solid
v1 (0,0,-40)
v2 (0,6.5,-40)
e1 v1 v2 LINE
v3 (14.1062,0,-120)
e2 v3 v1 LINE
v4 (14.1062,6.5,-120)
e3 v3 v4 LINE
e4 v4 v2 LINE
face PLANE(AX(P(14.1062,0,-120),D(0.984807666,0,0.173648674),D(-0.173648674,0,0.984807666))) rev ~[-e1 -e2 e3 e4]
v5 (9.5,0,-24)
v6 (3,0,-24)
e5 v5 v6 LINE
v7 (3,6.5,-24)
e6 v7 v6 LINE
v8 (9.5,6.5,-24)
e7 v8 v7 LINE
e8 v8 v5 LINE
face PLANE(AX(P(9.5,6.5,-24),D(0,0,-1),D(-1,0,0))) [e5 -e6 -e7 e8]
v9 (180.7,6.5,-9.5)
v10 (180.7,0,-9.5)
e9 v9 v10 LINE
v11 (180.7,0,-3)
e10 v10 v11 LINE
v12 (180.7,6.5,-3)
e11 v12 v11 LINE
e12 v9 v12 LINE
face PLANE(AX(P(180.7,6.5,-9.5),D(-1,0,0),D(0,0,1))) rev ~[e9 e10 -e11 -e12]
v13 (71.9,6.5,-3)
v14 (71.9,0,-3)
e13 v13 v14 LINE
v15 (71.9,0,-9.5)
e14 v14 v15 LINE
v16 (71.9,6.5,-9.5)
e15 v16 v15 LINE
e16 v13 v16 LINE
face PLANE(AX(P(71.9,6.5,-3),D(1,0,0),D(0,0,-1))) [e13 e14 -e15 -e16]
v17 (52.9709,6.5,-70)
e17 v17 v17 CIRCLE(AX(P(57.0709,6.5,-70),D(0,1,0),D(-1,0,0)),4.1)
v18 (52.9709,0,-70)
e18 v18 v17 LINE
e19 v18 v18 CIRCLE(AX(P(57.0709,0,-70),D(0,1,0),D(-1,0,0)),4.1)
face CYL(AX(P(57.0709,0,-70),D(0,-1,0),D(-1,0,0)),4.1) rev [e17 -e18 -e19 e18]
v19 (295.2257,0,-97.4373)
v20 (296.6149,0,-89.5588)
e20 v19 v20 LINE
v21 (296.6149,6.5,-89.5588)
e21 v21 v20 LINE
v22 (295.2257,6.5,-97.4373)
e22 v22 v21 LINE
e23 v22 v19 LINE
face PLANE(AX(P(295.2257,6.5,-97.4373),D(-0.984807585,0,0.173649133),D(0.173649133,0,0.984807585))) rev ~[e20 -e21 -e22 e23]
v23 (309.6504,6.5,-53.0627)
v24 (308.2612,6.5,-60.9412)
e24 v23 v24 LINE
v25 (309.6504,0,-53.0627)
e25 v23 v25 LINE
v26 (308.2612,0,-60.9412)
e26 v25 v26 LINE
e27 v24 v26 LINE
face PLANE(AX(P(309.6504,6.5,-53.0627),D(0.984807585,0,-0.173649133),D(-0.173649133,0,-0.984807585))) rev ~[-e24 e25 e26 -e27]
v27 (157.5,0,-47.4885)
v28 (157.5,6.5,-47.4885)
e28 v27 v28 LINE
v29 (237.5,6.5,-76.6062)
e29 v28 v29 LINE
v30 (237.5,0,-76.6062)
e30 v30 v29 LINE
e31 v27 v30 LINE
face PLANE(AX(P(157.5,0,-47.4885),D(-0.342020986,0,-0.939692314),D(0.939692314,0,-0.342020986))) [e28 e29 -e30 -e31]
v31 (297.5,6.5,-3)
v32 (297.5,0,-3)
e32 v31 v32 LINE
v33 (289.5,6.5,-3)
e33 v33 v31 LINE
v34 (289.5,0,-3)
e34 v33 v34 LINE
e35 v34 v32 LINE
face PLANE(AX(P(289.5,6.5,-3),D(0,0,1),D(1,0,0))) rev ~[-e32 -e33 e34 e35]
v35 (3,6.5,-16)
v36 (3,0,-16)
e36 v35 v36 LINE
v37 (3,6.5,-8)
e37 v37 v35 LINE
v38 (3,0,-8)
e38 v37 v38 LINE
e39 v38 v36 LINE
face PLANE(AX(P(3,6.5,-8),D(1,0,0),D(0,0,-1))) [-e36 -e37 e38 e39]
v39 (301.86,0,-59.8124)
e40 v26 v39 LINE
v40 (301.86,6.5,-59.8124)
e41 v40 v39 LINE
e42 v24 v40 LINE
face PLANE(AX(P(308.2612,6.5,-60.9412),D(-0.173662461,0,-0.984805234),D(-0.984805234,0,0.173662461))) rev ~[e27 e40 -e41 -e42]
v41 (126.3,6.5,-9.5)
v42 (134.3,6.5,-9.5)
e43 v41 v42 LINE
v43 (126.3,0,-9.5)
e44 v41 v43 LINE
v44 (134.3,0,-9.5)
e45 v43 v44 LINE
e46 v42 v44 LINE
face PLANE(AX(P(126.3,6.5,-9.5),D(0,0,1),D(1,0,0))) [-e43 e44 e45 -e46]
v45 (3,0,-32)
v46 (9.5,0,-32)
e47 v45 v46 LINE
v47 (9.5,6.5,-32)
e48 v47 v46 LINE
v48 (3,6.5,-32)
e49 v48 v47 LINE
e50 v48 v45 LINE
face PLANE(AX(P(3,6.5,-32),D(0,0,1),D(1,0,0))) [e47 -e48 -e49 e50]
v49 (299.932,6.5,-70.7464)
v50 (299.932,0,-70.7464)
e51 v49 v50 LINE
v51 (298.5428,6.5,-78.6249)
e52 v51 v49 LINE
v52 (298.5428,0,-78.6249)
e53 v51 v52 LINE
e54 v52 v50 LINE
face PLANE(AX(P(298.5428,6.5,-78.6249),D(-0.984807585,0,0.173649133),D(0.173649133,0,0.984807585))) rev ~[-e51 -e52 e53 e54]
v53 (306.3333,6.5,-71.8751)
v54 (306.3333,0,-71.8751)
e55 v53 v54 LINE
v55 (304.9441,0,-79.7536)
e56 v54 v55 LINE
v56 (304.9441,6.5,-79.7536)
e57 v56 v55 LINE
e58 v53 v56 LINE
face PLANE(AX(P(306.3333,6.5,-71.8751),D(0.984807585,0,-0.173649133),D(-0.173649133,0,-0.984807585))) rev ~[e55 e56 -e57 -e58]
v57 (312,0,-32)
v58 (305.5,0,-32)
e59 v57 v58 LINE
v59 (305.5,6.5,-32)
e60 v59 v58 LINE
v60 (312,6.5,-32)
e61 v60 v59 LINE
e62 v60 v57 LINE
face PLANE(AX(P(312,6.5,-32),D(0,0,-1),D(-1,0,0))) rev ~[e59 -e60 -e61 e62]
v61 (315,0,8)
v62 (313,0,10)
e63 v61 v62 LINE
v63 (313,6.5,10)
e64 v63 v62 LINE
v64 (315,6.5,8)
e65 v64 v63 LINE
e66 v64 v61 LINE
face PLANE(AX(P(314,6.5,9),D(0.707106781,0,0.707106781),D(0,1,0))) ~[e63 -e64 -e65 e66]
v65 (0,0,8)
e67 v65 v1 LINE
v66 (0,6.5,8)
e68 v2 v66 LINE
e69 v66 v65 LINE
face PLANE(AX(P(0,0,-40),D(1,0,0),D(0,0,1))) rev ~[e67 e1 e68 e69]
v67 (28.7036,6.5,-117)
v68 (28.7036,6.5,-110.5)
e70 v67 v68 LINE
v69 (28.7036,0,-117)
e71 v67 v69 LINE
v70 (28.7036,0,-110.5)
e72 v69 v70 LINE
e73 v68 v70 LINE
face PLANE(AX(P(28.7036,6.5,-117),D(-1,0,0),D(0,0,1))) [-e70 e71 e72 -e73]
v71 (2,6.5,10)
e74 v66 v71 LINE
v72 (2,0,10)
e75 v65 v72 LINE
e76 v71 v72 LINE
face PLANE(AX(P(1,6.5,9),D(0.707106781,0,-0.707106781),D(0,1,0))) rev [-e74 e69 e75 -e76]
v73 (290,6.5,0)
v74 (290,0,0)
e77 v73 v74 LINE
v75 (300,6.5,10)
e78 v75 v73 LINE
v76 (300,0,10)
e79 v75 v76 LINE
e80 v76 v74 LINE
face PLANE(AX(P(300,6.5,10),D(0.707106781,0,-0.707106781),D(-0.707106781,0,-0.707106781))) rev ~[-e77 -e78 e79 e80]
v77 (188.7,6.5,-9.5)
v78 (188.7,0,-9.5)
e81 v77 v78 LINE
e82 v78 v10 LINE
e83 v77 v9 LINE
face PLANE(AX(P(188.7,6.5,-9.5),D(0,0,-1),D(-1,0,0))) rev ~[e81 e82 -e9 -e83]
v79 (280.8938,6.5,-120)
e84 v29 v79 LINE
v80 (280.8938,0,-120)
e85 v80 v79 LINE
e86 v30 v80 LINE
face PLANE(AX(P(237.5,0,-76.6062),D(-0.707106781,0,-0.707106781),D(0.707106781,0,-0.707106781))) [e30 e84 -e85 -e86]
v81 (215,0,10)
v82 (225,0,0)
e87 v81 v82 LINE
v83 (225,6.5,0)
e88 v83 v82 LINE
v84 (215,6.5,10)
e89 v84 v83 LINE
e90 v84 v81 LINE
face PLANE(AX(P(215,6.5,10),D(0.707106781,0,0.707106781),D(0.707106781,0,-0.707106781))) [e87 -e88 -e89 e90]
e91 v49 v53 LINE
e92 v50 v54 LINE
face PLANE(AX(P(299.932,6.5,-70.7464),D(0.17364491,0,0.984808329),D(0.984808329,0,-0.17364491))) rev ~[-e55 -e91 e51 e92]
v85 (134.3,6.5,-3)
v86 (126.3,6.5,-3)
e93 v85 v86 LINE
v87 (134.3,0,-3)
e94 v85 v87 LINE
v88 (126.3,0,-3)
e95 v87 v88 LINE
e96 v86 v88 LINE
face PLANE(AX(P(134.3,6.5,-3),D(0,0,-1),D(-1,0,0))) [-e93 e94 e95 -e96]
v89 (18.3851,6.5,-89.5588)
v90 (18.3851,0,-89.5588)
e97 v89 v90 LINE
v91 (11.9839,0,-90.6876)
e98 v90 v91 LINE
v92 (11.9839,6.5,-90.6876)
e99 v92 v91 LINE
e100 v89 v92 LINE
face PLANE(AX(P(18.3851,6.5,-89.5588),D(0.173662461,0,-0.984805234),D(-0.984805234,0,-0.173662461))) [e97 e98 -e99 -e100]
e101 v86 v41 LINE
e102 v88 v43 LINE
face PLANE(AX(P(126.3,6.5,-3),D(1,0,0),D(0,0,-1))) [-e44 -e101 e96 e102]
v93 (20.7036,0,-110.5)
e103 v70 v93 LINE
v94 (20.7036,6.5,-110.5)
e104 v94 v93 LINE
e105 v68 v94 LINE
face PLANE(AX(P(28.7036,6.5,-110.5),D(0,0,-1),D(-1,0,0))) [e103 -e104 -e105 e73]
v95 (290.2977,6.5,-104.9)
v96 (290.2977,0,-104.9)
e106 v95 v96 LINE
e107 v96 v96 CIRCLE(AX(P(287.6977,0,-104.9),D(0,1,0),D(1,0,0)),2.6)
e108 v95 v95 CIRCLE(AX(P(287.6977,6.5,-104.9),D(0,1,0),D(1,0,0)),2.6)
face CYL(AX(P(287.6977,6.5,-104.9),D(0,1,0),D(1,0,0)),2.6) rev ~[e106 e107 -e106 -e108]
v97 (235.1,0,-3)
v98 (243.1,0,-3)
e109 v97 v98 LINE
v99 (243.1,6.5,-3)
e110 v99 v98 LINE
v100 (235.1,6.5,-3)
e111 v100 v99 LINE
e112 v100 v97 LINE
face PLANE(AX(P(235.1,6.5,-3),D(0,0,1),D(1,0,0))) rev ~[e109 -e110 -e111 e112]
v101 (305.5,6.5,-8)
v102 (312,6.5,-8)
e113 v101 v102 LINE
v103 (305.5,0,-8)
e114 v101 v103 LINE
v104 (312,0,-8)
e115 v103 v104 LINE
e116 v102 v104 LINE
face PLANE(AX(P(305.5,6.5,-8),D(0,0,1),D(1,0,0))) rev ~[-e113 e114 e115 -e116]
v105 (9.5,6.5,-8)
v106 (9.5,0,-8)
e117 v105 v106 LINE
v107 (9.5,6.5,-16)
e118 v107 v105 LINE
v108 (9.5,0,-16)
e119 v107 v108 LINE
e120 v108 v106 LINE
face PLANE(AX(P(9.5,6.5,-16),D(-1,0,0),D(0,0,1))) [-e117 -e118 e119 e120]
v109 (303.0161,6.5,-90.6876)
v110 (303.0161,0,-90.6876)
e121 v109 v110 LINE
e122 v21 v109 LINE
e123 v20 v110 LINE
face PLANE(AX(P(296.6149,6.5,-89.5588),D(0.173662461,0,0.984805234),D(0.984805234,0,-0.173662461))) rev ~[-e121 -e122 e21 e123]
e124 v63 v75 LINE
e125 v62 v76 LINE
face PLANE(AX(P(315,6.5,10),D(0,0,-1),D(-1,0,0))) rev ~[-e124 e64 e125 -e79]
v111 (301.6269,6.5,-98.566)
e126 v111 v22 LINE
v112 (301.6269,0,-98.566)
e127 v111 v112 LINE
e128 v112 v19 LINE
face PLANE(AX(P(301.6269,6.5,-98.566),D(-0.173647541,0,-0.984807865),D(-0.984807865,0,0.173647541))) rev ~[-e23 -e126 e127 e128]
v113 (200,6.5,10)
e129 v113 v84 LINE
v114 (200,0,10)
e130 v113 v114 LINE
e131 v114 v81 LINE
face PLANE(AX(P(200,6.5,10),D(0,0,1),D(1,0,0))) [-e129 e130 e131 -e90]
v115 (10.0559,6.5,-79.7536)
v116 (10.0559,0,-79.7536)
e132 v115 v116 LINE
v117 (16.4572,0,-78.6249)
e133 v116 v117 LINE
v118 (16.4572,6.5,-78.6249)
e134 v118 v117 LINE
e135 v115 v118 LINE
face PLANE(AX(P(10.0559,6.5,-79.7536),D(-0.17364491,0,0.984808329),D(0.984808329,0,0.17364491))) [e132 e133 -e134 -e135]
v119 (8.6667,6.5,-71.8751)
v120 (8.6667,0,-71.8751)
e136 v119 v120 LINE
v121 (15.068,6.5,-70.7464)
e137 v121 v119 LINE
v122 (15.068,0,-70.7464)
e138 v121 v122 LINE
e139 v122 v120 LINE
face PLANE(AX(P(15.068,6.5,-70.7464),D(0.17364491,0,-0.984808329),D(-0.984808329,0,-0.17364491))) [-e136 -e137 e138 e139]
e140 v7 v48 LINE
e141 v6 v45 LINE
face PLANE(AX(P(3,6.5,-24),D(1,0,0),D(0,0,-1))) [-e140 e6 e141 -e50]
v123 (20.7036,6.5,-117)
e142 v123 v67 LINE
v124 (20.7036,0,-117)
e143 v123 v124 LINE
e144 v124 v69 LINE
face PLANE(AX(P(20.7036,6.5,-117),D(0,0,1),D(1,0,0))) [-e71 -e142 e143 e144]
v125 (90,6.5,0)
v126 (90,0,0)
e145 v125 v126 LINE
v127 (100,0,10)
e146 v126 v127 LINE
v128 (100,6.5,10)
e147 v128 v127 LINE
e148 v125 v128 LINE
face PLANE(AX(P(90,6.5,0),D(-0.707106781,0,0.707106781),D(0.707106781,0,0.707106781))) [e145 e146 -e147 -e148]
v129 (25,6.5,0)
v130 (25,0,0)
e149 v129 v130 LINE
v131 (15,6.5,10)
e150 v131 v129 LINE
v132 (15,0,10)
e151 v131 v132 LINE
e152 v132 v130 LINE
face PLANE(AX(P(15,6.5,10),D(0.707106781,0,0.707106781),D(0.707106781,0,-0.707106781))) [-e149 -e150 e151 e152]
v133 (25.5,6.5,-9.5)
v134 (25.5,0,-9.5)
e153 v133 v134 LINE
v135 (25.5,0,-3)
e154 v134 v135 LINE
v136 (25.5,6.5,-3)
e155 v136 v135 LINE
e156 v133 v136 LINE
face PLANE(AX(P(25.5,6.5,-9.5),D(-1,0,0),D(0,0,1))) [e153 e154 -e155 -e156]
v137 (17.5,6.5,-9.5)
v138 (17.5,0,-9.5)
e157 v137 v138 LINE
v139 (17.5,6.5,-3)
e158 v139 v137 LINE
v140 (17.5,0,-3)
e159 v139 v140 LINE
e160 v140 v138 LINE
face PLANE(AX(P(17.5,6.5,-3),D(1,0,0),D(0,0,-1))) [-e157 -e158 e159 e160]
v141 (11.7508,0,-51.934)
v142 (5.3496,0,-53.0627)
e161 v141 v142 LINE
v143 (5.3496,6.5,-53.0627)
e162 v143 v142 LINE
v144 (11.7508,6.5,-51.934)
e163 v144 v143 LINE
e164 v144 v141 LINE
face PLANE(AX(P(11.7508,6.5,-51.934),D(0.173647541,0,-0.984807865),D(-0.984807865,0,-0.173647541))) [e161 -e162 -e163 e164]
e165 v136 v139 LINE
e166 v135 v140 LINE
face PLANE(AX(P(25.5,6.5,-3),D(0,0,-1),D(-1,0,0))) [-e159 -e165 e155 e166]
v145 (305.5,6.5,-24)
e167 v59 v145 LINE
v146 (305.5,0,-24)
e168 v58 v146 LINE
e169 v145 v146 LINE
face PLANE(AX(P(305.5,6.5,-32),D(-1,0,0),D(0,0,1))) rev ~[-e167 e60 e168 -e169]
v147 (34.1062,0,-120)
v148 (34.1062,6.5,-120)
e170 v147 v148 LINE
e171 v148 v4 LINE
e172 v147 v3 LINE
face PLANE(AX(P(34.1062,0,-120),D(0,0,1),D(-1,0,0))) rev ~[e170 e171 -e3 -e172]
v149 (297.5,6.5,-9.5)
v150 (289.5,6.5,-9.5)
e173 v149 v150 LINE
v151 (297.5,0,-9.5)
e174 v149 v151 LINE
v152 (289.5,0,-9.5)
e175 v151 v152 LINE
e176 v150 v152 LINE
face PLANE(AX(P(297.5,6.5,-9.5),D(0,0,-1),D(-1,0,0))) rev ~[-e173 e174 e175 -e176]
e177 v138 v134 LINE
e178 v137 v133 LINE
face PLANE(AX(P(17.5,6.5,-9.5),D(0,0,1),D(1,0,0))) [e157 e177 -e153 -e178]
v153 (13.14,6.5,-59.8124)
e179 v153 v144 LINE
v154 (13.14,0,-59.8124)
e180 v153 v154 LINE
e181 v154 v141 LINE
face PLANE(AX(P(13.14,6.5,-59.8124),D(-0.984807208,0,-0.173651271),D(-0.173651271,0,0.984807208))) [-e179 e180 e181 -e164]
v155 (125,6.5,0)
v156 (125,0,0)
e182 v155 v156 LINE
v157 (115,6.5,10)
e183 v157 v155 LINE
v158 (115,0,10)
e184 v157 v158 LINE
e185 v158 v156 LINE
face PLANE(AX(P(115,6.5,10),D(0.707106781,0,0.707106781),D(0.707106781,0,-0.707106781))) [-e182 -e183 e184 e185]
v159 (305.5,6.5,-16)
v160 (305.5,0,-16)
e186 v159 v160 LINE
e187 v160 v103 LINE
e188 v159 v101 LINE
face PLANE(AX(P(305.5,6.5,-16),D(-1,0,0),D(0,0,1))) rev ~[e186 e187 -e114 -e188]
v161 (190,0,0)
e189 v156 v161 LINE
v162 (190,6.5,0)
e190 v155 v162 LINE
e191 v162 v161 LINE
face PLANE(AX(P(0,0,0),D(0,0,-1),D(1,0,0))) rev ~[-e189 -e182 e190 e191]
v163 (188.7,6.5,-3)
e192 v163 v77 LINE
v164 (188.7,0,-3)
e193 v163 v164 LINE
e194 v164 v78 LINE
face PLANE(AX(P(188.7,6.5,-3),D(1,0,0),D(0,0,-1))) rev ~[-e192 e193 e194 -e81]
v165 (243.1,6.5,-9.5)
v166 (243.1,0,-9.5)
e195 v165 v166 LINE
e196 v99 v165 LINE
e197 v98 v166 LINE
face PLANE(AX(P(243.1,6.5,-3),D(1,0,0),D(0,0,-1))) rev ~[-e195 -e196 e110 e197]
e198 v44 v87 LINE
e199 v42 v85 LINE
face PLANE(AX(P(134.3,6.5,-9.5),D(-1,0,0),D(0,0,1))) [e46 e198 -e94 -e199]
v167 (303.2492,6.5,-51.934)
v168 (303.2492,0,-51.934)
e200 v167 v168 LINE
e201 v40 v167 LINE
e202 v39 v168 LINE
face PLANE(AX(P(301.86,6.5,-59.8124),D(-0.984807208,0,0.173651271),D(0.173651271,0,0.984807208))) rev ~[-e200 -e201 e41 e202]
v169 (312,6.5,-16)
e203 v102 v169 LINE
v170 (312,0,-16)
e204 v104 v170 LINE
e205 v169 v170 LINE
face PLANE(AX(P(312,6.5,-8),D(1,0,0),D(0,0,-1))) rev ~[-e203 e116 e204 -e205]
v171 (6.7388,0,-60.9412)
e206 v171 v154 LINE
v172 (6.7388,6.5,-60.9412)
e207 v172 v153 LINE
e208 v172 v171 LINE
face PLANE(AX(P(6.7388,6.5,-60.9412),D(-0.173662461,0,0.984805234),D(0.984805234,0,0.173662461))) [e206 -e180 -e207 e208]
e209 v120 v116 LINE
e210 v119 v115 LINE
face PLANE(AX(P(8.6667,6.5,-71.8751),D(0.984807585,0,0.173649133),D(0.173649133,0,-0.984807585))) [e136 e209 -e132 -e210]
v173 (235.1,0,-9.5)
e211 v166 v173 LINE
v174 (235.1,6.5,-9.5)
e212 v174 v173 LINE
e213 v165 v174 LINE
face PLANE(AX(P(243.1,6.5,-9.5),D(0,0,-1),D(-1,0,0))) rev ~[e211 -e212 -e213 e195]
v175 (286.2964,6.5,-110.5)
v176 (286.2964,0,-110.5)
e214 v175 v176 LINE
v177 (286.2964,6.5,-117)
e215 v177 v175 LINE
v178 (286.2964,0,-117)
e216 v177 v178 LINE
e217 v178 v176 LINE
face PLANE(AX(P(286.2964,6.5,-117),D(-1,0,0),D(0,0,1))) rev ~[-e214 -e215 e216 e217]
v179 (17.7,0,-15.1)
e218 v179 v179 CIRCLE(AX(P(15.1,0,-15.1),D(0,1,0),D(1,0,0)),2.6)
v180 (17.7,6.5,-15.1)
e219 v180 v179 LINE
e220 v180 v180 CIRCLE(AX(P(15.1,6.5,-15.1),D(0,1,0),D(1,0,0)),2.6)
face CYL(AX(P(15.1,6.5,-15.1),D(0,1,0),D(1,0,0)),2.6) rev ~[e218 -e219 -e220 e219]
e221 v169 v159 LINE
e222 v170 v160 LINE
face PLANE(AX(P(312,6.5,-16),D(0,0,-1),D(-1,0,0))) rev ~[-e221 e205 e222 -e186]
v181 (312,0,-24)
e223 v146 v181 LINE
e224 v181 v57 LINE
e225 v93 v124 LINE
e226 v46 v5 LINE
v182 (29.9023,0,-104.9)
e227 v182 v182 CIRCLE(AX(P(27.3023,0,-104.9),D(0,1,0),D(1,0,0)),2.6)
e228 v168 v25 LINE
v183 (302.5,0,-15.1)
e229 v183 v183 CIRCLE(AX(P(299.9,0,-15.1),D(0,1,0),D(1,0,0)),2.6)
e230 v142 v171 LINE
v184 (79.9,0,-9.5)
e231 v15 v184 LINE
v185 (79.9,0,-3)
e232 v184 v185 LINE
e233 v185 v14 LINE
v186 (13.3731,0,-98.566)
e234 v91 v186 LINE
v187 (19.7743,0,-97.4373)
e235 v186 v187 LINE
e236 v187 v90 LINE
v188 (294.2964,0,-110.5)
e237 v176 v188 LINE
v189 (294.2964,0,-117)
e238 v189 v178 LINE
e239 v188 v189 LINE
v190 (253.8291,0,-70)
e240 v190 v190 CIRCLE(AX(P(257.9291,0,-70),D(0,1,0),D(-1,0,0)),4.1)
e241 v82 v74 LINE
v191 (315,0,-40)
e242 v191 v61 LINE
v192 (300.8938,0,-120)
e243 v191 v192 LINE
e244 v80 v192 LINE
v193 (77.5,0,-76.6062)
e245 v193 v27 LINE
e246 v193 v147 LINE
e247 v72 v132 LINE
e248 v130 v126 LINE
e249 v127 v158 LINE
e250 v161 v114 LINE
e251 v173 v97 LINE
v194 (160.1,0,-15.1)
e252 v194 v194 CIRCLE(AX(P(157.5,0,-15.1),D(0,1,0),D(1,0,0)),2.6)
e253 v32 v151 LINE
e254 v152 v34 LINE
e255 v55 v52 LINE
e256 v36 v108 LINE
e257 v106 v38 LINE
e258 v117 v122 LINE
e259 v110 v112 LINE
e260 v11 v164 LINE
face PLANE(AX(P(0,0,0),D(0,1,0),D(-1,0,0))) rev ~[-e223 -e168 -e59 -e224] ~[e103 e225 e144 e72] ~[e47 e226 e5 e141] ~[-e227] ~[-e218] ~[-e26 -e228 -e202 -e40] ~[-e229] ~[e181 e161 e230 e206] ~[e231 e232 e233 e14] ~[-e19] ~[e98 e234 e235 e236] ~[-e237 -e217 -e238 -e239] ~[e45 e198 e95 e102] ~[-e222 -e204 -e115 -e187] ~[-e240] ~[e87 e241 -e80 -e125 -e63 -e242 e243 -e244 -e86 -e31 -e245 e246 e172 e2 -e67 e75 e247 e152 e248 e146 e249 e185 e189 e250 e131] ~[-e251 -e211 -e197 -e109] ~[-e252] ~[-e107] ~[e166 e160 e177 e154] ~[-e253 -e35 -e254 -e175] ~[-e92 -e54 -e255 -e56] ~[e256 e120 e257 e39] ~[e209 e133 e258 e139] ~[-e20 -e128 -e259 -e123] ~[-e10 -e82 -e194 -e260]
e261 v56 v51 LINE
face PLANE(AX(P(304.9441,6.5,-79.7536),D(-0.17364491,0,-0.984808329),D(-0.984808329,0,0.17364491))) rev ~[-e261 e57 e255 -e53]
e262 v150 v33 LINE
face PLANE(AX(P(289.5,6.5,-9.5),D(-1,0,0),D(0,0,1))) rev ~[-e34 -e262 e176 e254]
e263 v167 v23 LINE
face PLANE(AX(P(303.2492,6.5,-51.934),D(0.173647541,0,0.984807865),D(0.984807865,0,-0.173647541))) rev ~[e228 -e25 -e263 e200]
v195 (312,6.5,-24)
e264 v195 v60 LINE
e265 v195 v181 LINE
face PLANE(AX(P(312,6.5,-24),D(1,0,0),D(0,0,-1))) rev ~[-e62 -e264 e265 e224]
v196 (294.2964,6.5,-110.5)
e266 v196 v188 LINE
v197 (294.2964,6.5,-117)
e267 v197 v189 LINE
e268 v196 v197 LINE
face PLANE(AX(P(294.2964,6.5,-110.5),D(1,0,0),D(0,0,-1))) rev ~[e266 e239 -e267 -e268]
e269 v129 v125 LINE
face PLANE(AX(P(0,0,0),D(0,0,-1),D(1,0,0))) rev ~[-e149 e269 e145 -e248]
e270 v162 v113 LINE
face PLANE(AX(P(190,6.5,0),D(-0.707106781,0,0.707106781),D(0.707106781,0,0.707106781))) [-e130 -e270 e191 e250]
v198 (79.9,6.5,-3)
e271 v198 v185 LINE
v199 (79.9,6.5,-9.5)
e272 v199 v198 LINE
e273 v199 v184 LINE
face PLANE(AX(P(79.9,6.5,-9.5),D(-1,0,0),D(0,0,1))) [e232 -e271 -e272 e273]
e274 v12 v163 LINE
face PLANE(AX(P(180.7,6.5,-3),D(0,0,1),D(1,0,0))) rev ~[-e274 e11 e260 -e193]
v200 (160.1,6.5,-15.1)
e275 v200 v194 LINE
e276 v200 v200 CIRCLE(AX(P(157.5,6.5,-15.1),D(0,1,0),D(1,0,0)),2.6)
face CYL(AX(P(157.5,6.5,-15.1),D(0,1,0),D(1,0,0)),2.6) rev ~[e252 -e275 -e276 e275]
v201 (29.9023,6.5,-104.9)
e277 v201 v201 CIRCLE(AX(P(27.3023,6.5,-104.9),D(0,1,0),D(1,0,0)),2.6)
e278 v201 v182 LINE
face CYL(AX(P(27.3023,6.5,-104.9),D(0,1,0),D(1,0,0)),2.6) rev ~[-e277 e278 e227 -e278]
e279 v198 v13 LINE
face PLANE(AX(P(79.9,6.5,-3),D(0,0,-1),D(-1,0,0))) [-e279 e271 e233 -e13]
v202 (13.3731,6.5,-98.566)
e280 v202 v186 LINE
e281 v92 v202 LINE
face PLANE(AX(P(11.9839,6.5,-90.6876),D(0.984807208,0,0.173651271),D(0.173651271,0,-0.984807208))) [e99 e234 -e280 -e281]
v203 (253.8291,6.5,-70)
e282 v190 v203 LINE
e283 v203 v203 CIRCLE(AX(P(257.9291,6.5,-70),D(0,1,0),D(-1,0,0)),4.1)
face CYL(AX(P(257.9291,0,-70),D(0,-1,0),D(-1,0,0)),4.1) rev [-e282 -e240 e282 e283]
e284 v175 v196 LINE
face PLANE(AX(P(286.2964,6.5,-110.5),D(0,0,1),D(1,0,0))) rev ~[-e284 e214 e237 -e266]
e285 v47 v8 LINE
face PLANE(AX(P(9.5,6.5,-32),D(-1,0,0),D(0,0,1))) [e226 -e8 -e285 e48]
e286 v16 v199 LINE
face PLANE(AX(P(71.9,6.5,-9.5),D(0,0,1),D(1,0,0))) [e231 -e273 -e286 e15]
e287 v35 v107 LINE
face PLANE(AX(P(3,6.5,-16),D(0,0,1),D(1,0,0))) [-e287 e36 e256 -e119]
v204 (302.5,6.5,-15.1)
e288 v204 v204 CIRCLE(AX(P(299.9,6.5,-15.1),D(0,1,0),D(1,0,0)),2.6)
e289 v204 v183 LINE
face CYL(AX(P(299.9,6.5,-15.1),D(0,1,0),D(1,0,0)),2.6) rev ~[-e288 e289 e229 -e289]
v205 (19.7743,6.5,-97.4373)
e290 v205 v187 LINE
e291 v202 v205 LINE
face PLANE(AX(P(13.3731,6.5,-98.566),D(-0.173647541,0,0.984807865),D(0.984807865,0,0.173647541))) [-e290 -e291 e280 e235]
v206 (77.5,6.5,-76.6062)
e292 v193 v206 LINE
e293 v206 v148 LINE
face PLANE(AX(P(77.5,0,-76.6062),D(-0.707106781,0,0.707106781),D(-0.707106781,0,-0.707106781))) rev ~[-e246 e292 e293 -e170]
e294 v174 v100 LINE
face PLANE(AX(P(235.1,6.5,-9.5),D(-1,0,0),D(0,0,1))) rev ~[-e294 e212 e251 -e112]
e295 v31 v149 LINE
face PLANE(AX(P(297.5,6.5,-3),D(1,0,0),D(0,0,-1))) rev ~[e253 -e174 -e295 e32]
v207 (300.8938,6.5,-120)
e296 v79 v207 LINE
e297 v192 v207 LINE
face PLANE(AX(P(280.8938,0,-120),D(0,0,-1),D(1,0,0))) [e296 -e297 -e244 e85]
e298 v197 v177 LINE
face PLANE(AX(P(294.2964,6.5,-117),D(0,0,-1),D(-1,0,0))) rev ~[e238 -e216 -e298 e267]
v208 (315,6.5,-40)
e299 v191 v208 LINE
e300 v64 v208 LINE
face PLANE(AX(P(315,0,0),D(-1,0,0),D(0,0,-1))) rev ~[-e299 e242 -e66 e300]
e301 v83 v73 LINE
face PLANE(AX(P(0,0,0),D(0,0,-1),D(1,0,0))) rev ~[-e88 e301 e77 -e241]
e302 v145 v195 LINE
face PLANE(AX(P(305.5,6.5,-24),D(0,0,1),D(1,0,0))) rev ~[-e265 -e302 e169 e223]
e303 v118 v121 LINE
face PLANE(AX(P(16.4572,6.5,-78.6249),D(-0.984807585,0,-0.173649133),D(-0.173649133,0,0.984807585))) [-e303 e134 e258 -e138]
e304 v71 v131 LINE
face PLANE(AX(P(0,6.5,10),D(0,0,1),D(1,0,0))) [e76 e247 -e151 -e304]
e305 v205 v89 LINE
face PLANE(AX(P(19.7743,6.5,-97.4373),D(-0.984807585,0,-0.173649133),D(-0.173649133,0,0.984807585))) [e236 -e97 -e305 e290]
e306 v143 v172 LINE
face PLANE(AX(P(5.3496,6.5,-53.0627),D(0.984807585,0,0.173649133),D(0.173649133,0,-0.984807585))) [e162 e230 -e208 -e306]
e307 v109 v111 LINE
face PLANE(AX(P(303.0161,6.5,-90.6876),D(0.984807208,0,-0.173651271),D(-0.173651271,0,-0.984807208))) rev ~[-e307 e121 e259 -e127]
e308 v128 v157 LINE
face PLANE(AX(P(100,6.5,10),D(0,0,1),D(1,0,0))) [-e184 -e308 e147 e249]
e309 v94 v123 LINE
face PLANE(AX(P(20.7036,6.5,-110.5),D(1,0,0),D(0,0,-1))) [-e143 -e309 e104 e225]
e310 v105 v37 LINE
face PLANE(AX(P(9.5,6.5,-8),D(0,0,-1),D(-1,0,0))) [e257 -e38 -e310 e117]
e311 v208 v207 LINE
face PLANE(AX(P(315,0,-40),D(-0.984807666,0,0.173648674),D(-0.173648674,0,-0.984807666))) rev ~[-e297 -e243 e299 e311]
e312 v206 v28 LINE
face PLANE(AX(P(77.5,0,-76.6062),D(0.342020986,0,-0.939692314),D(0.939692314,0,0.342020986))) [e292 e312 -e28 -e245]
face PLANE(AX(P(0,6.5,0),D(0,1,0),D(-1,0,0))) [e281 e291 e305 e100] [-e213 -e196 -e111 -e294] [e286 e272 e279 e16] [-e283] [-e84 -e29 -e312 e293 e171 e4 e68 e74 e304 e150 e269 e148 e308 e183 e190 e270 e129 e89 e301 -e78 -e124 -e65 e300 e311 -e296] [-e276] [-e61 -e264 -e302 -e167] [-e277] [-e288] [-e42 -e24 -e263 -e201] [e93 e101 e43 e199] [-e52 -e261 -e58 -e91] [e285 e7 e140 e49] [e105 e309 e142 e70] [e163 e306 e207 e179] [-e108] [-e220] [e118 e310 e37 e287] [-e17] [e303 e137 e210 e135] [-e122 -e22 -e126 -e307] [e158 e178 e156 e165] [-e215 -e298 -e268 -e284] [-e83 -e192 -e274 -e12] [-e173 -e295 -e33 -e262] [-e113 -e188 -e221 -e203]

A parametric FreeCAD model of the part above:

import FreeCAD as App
import Part
import Sketcher
Q = App.Units.Quantity


def edges_at(feature, points):
    """Names of the edges that pass closest to the given points."""
    edges = feature.Shape.Edges
    near = lambda p: min(range(len(edges)), key=lambda i: edges[i].distToShape(Part.Vertex(*p))[0])
    return sorted({f"Edge{near(p) + 1}" for p in points})


def add_polygon(sketch, points):
    """Adds a closed chain of lines whose ends are joined by coincident constraints."""
    first, n = sketch.GeometryCount, len(points)
    for a, b in zip(points, points[1:] + points[:1]):
        sketch.addGeometry(Part.LineSegment(App.Vector(*a, 0), App.Vector(*b, 0)), False)
    for i in range(n):
        sketch.addConstraint(Sketcher.Constraint("Coincident", first + i, 2, first + (i + 1) % n, 1))

doc = App.newDocument("Part")
body = doc.addObject("PartDesign::Body", "Body")

sketch1 = body.newObject("Sketcher::SketchObject", "Sketch")
sketch1.AttachmentSupport = (doc.getObject("XZ_Plane"), [""])
sketch1.MapMode = "FlatFace"
add_polygon(sketch1, [(157.5, -47.5), (77.5, -76.6), (34.1, -120), (14.1, -120), (0, -40), (0, 0), (315, 0), (315, -40), (300.9, -120), (280.9, -120), (237.5, -76.6)])
sketch1.addGeometry(Part.Circle(App.Vector(257.9, -70, 0), App.Vector(0, 0, 1), 4.1), False)
sketch1.addGeometry(Part.Circle(App.Vector(57.1, -70, 0), App.Vector(0, 0, 1), 4.1), False)
sketch1.addConstraint(Sketcher.Constraint("Horizontal", 2))
sketch1.addConstraint(Sketcher.Constraint("Vertical", 4))
sketch1.addConstraint(Sketcher.Constraint("Horizontal", 5))
sketch1.addConstraint(Sketcher.Constraint("Vertical", 6))
sketch1.addConstraint(Sketcher.Constraint("Horizontal", 8))
sketch1.addConstraint(Sketcher.Constraint("Coincident", 4, 2, -1, 1))
sketch1.addConstraint(Sketcher.Constraint("Equal", 11, 12))
sketch1.addConstraint(Sketcher.Constraint("Perpendicular", 1, 9))
sketch1.addConstraint(Sketcher.Constraint("Horizontal", 11, 3, 12, 3))
sketch1.addConstraint(Sketcher.Constraint("Horizontal", 3, 2, 6, 2))
sketch1.addConstraint(Sketcher.Constraint("Horizontal", 2, 2, 7, 2))
sketch1.addConstraint(Sketcher.Constraint("Horizontal", 0, 2, 9, 2))
sketch1.addConstraint(Sketcher.Constraint("Equal", 2, 8))
sketch1.addConstraint(Sketcher.Constraint("Equal", 3, 7))
sketch1.addConstraint(Sketcher.Constraint("Equal", 1, 9))
sketch1.addConstraint(Sketcher.Constraint("Equal", 0, 10))
sketch1.addConstraint(Sketcher.Constraint("Diameter", 11, 8.2))
sketch1.addConstraint(Sketcher.Constraint("DistanceX", 2, 2, 2, 1, 20.0))
sketch1.addConstraint(Sketcher.Constraint("DistanceX", 5, 1, 5, 2, 315.0))
sketch1.addConstraint(Sketcher.Constraint("DistanceY", 4, 1, 4, 2, 40.0))
sketch1.addConstraint(Sketcher.Constraint("Angle", 0, Q("-160 deg")))
sketch1.addConstraint(Sketcher.Constraint("DistanceY", 11, 3, -1, 1, 70.0))
sketch1.addConstraint(Sketcher.Constraint("DistanceY", 2, 2, 3, 2, 80.0))
sketch1.addConstraint(Sketcher.Constraint("DistanceX", 0, 2, 10, 2, 80.0))
sketch1.addConstraint(Sketcher.Constraint("Angle", 3, Q("100 deg")))
sketch1.addConstraint(Sketcher.Constraint("DistanceX", -1, 1, 11, 3, 257.929))
sketch1.addConstraint(Sketcher.Constraint("DistanceX", -1, 1, 12, 3, 57.071))
pad1 = body.newObject("PartDesign::Pad", "Pad")
pad1.Profile = sketch1
pad1.Length = 6.5
pad1.Reversed = True

sketch2 = body.newObject("Sketcher::SketchObject", "Sketch001")
sketch2.AttachmentSupport = (doc.getObject("XZ_Plane"), [""])
sketch2.MapMode = "FlatFace"
sketch2.AttachmentOffset = App.Placement(App.Vector(0, 0, -6.5), App.Rotation())
add_polygon(sketch2, [(25.5, -9.5), (17.5, -9.5), (17.5, -3), (25.5, -3)])
add_polygon(sketch2, [(79.9, -9.5), (71.9, -9.5), (71.9, -3), (79.9, -3)])
add_polygon(sketch2, [(134.3, -9.5), (126.3, -9.5), (126.3, -3), (134.3, -3)])
add_polygon(sketch2, [(9.5, -32), (3, -32), (3, -24), (9.5, -24)])
add_polygon(sketch2, [(9.5, -16), (3, -16), (3, -8), (9.5, -8)])
add_polygon(sketch2, [(28.7, -117), (20.7, -117), (20.7, -110.5), (28.7, -110.5)])
add_polygon(sketch2, [(19.8, -97.4), (13.4, -98.6), (12, -90.7), (18.4, -89.6)])
add_polygon(sketch2, [(16.5, -78.6), (10.1, -79.8), (8.7, -71.9), (15.1, -70.7)])
add_polygon(sketch2, [(13.1, -59.8), (6.7, -60.9), (5.3, -53.1), (11.8, -51.9)])
add_polygon(sketch2, [(297.5, -3), (297.5, -9.5), (289.5, -9.5), (289.5, -3)])
add_polygon(sketch2, [(243.1, -3), (243.1, -9.5), (235.1, -9.5), (235.1, -3)])
add_polygon(sketch2, [(188.7, -3), (188.7, -9.5), (180.7, -9.5), (180.7, -3)])
add_polygon(sketch2, [(312, -24), (312, -32), (305.5, -32), (305.5, -24)])
add_polygon(sketch2, [(312, -8), (312, -16), (305.5, -16), (305.5, -8)])
add_polygon(sketch2, [(294.3, -110.5), (294.3, -117), (286.3, -117), (286.3, -110.5)])
add_polygon(sketch2, [(303, -90.7), (301.6, -98.6), (295.2, -97.4), (296.6, -89.6)])
add_polygon(sketch2, [(306.3, -71.9), (304.9, -79.8), (298.5, -78.6), (299.9, -70.7)])
add_polygon(sketch2, [(309.7, -53.1), (308.3, -60.9), (301.9, -59.8), (303.2, -51.9)])
sketch2.addGeometry(Part.Circle(App.Vector(27.3, -104.9, 0), App.Vector(0, 0, 1), 2.6), False)
sketch2.addGeometry(Part.Circle(App.Vector(15.1, -15.1, 0), App.Vector(0, 0, 1), 2.6), False)
sketch2.addGeometry(Part.Circle(App.Vector(157.5, -15.1, 0), App.Vector(0, 0, 1), 2.6), False)
sketch2.addGeometry(Part.Circle(App.Vector(287.7, -104.9, 0), App.Vector(0, 0, 1), 2.6), False)
sketch2.addGeometry(Part.Circle(App.Vector(299.9, -15.1, 0), App.Vector(0, 0, 1), 2.6), False)
sketch2.addConstraint(Sketcher.Constraint("Horizontal", 0))
sketch2.addConstraint(Sketcher.Constraint("Vertical", 1))
sketch2.addConstraint(Sketcher.Constraint("Horizontal", 2))
sketch2.addConstraint(Sketcher.Constraint("Vertical", 3))
sketch2.addConstraint(Sketcher.Constraint("Horizontal", 4))
sketch2.addConstraint(Sketcher.Constraint("Vertical", 5))
sketch2.addConstraint(Sketcher.Constraint("Horizontal", 6))
sketch2.addConstraint(Sketcher.Constraint("Vertical", 7))
sketch2.addConstraint(Sketcher.Constraint("Horizontal", 8))
sketch2.addConstraint(Sketcher.Constraint("Vertical", 9))
sketch2.addConstraint(Sketcher.Constraint("Horizontal", 10))
sketch2.addConstraint(Sketcher.Constraint("Vertical", 11))
sketch2.addConstraint(Sketcher.Constraint("Horizontal", 12))
sketch2.addConstraint(Sketcher.Constraint("Vertical", 13))
sketch2.addConstraint(Sketcher.Constraint("Horizontal", 14))
sketch2.addConstraint(Sketcher.Constraint("Vertical", 15))
sketch2.addConstraint(Sketcher.Constraint("Horizontal", 16))
sketch2.addConstraint(Sketcher.Constraint("Vertical", 17))
sketch2.addConstraint(Sketcher.Constraint("Horizontal", 18))
sketch2.addConstraint(Sketcher.Constraint("Vertical", 19))
sketch2.addConstraint(Sketcher.Constraint("Horizontal", 20))
sketch2.addConstraint(Sketcher.Constraint("Vertical", 21))
sketch2.addConstraint(Sketcher.Constraint("Horizontal", 22))
sketch2.addConstraint(Sketcher.Constraint("Vertical", 23))
sketch2.addConstraint(Sketcher.Constraint("Vertical", 36))
sketch2.addConstraint(Sketcher.Constraint("Horizontal", 37))
sketch2.addConstraint(Sketcher.Constraint("Vertical", 38))
sketch2.addConstraint(Sketcher.Constraint("Horizontal", 39))
sketch2.addConstraint(Sketcher.Constraint("Vertical", 40))
sketch2.addConstraint(Sketcher.Constraint("Horizontal", 41))
sketch2.addConstraint(Sketcher.Constraint("Vertical", 42))
sketch2.addConstraint(Sketcher.Constraint("Horizontal", 43))
sketch2.addConstraint(Sketcher.Constraint("Vertical", 44))
sketch2.addConstraint(Sketcher.Constraint("Horizontal", 45))
sketch2.addConstraint(Sketcher.Constraint("Vertical", 46))
sketch2.addConstraint(Sketcher.Constraint("Horizontal", 47))
sketch2.addConstraint(Sketcher.Constraint("Vertical", 48))
sketch2.addConstraint(Sketcher.Constraint("Horizontal", 49))
sketch2.addConstraint(Sketcher.Constraint("Vertical", 50))
sketch2.addConstraint(Sketcher.Constraint("Horizontal", 51))
sketch2.addConstraint(Sketcher.Constraint("Vertical", 52))
sketch2.addConstraint(Sketcher.Constraint("Horizontal", 53))
sketch2.addConstraint(Sketcher.Constraint("Vertical", 54))
sketch2.addConstraint(Sketcher.Constraint("Horizontal", 55))
sketch2.addConstraint(Sketcher.Constraint("Vertical", 56))
sketch2.addConstraint(Sketcher.Constraint("Horizontal", 57))
sketch2.addConstraint(Sketcher.Constraint("Vertical", 58))
sketch2.addConstraint(Sketcher.Constraint("Horizontal", 59))
sketch2.addConstraint(Sketcher.Constraint("Equal", 72, 73))
sketch2.addConstraint(Sketcher.Constraint("Equal", 73, 74))
sketch2.addConstraint(Sketcher.Constraint("Equal", 74, 75))
sketch2.addConstraint(Sketcher.Constraint("Equal", 75, 76))
sketch2.addConstraint(Sketcher.Constraint("Perpendicular", 24, 25))
sketch2.addConstraint(Sketcher.Constraint("Perpendicular", 25, 26))
sketch2.addConstraint(Sketcher.Constraint("Perpendicular", 26, 27))
sketch2.addConstraint(Sketcher.Constraint("Perpendicular", 27, 28))
sketch2.addConstraint(Sketcher.Constraint("Perpendicular", 28, 29))
sketch2.addConstraint(Sketcher.Constraint("Perpendicular", 29, 30))
sketch2.addConstraint(Sketcher.Constraint("Perpendicular", 30, 31))
sketch2.addConstraint(Sketcher.Constraint("Perpendicular", 31, 32))
sketch2.addConstraint(Sketcher.Constraint("Perpendicular", 32, 33))
sketch2.addConstraint(Sketcher.Constraint("Perpendicular", 33, 34))
sketch2.addConstraint(Sketcher.Constraint("Perpendicular", 34, 35))
sketch2.addConstraint(Sketcher.Constraint("Perpendicular", 60, 61))
sketch2.addConstraint(Sketcher.Constraint("Perpendicular", 61, 62))
sketch2.addConstraint(Sketcher.Constraint("Perpendicular", 62, 63))
sketch2.addConstraint(Sketcher.Constraint("Perpendicular", 63, 64))
sketch2.addConstraint(Sketcher.Constraint("Perpendicular", 64, 65))
sketch2.addConstraint(Sketcher.Constraint("Perpendicular", 65, 66))
sketch2.addConstraint(Sketcher.Constraint("Perpendicular", 66, 67))
sketch2.addConstraint(Sketcher.Constraint("Perpendicular", 67, 68))
sketch2.addConstraint(Sketcher.Constraint("Perpendicular", 68, 69))
sketch2.addConstraint(Sketcher.Constraint("Perpendicular", 69, 70))
sketch2.addConstraint(Sketcher.Constraint("Perpendicular", 70, 71))
sketch2.addConstraint(Sketcher.Constraint("Horizontal", 73, 3, 74, 3))
sketch2.addConstraint(Sketcher.Constraint("Horizontal", 72, 3, 75, 3))
sketch2.addConstraint(Sketcher.Constraint("Horizontal", 74, 3, 76, 3))
sketch2.addConstraint(Sketcher.Constraint("Horizontal", 3, 2, 4, 2))
sketch2.addConstraint(Sketcher.Constraint("Horizontal", 2, 2, 5, 2))
sketch2.addConstraint(Sketcher.Constraint("Horizontal", 7, 2, 8, 2))
sketch2.addConstraint(Sketcher.Constraint("Horizontal", 6, 2, 9, 2))
sketch2.addConstraint(Sketcher.Constraint("Horizontal", 11, 2, 36, 2))
sketch2.addConstraint(Sketcher.Constraint("Horizontal", 10, 2, 38, 2))
sketch2.addConstraint(Sketcher.Constraint("Horizontal", 37, 2, 40, 2))
sketch2.addConstraint(Sketcher.Constraint("Horizontal", 39, 2, 42, 2))
sketch2.addConstraint(Sketcher.Constraint("Horizontal", 41, 2, 44, 2))
sketch2.addConstraint(Sketcher.Constraint("Horizontal", 43, 2, 46, 2))
sketch2.addConstraint(Sketcher.Constraint("Horizontal", 15, 2, 48, 2))
sketch2.addConstraint(Sketcher.Constraint("Horizontal", 14, 2, 50, 2))
sketch2.addConstraint(Sketcher.Constraint("Horizontal", 19, 2, 52, 2))
sketch2.addConstraint(Sketcher.Constraint("Horizontal", 18, 2, 54, 2))
sketch2.addConstraint(Sketcher.Constraint("Horizontal", 23, 2, 56, 2))
sketch2.addConstraint(Sketcher.Constraint("Horizontal", 22, 2, 58, 2))
sketch2.addConstraint(Sketcher.Constraint("Horizontal", 24, 2, 60, 2))
sketch2.addConstraint(Sketcher.Constraint("Horizontal", 27, 2, 61, 2))
sketch2.addConstraint(Sketcher.Constraint("Horizontal", 26, 2, 62, 2))
sketch2.addConstraint(Sketcher.Constraint("Horizontal", 28, 2, 64, 2))
sketch2.addConstraint(Sketcher.Constraint("Horizontal", 31, 2, 65, 2))
sketch2.addConstraint(Sketcher.Constraint("Horizontal", 30, 2, 66, 2))
sketch2.addConstraint(Sketcher.Constraint("Horizontal", 32, 2, 68, 2))
sketch2.addConstraint(Sketcher.Constraint("Horizontal", 35, 2, 69, 2))
sketch2.addConstraint(Sketcher.Constraint("Horizontal", 34, 2, 70, 2))
sketch2.addConstraint(Sketcher.Constraint("Vertical", 13, 2, 16, 2))
sketch2.addConstraint(Sketcher.Constraint("Vertical", 15, 2, 18, 2))
sketch2.addConstraint(Sketcher.Constraint("Vertical", 51, 2, 52, 2))
sketch2.addConstraint(Sketcher.Constraint("Vertical", 50, 2, 53, 2))
sketch2.addConstraint(Sketcher.Constraint("Equal", 2, 4))
sketch2.addConstraint(Sketcher.Constraint("Equal", 6, 8))
sketch2.addConstraint(Sketcher.Constraint("Equal", 10, 20))
sketch2.addConstraint(Sketcher.Constraint("Equal", 22, 37))
sketch2.addConstraint(Sketcher.Constraint("Equal", 39, 41))
sketch2.addConstraint(Sketcher.Constraint("Equal", 43, 45))
sketch2.addConstraint(Sketcher.Constraint("Equal", 18, 49))
sketch2.addConstraint(Sketcher.Constraint("Equal", 47, 57))
sketch2.addConstraint(Sketcher.Constraint("Equal", 55, 1))
sketch2.addConstraint(Sketcher.Constraint("Equal", 59, 13))
sketch2.addConstraint(Sketcher.Constraint("Equal", 15, 17))
sketch2.addConstraint(Sketcher.Constraint("Equal", 11, 21))
sketch2.addConstraint(Sketcher.Constraint("Equal", 26, 28))
sketch2.addConstraint(Sketcher.Constraint("Equal", 27, 29))
sketch2.addConstraint(Sketcher.Constraint("Equal", 30, 32))
sketch2.addConstraint(Sketcher.Constraint("Equal", 31, 33))
sketch2.addConstraint(Sketcher.Constraint("Equal", 35, 60))
sketch2.addConstraint(Sketcher.Constraint("Diameter", 72, 5.2))
sketch2.addConstraint(Sketcher.Constraint("DistanceX", 0, 2, 0, 1, 8.0))
sketch2.addConstraint(Sketcher.Constraint("Distance", 25, 8.0))
sketch2.addConstraint(Sketcher.Constraint("DistanceX", 12, 2, 12, 1, 6.5))
sketch2.addConstraint(Sketcher.Constraint("DistanceY", 1, 2, -1, 1, 3.0))
sketch2.addConstraint(Sketcher.Constraint("DistanceX", -1, 1, 12, 2, 3.0))
sketch2.addConstraint(Sketcher.Constraint("DistanceY", 17, 2, -1, 1, 8.0))
sketch2.addConstraint(Sketcher.Constraint("Distance", 24, 6.5))
sketch2.addConstraint(Sketcher.Constraint("Angle", 24, Q("-170 deg")))
sketch2.addConstraint(Sketcher.Constraint("DistanceY", 12, 2, -1, 1, 32.0))
sketch2.addConstraint(Sketcher.Constraint("DistanceY", 20, 2, -1, 1, 117.0))
sketch2.addConstraint(Sketcher.Constraint("DistanceX", -1, 1, 48, 2, 312.0))
sketch2.addConstraint(Sketcher.Constraint("DistanceY", 72, 3, -1, 1, 104.9))
sketch2.addConstraint(Sketcher.Constraint("DistanceX", -1, 1, 73, 3, 15.1))
sketch2.addConstraint(Sketcher.Constraint("DistanceY", 73, 3, -1, 1, 15.1))
sketch2.addConstraint(Sketcher.Constraint("DistanceX", -1, 1, 74, 3, 157.5))
sketch2.addConstraint(Sketcher.Constraint("DistanceX", -1, 1, 76, 3, 299.9))
sketch2.addConstraint(Sketcher.Constraint("DistanceX", -1, 1, 0, 2, 17.5))
sketch2.addConstraint(Sketcher.Constraint("DistanceX", -1, 1, 4, 2, 71.9))
sketch2.addConstraint(Sketcher.Constraint("DistanceX", -1, 1, 8, 2, 126.3))
sketch2.addConstraint(Sketcher.Constraint("DistanceX", -1, 1, 36, 2, 297.5))
sketch2.addConstraint(Sketcher.Constraint("DistanceX", -1, 1, 40, 2, 243.1))
sketch2.addConstraint(Sketcher.Constraint("DistanceX", -1, 1, 44, 2, 188.7))
sketch2.addConstraint(Sketcher.Constraint("DistanceX", -1, 1, 35, 2, 13.14))
sketch2.addConstraint(Sketcher.Constraint("DistanceX", -1, 1, 69, 2, 301.86))
sketch2.addConstraint(Sketcher.Constraint("DistanceX", -1, 1, 24, 2, 13.373))
sketch2.addConstraint(Sketcher.Constraint("DistanceY", 24, 2, -1, 1, 98.566))
sketch2.addConstraint(Sketcher.Constraint("DistanceX", -1, 1, 28, 2, 10.056))
sketch2.addConstraint(Sketcher.Constraint("DistanceY", 29, 2, -1, 1, 71.875))
sketch2.addConstraint(Sketcher.Constraint("DistanceY", 34, 2, -1, 1, 51.934))
sketch2.addConstraint(Sketcher.Constraint("DistanceX", -1, 1, 60, 2, 301.627))
sketch2.addConstraint(Sketcher.Constraint("DistanceX", -1, 1, 64, 2, 304.944))
sketch2.addConstraint(Sketcher.Constraint("DistanceX", -1, 1, 72, 3, 27.3023))
sketch2.addConstraint(Sketcher.Constraint("DistanceX", -1, 1, 75, 3, 287.6977))
sketch2.addConstraint(Sketcher.Constraint("DistanceX", -1, 1, 20, 2, 20.7036))
sketch2.addConstraint(Sketcher.Constraint("DistanceX", -1, 1, 56, 2, 294.2964))
pocket1 = body.newObject("PartDesign::Pocket", "Pocket")
pocket1.Profile = sketch2
pocket1.Type = "ThroughAll"
pocket1.Reversed = True

sketch3 = body.newObject("Sketcher::SketchObject", "Sketch002")
sketch3.AttachmentSupport = (doc.getObject("XZ_Plane"), [""])
sketch3.MapMode = "FlatFace"
sketch3.AttachmentOffset = App.Placement(App.Vector(0, 0, -6.5), App.Rotation())
add_polygon(sketch3, [(315, 0), (290, 0), (300, 10), (315, 10)])
add_polygon(sketch3, [(225, 0), (190, 0), (200, 10), (215, 10)])
add_polygon(sketch3, [(125, 0), (90, 0), (100, 10), (115, 10)])
add_polygon(sketch3, [(25, 0), (0, 0), (0, 10), (15, 10)])
sketch3.addConstraint(Sketcher.Constraint("Horizontal", 0))
sketch3.addConstraint(Sketcher.Constraint("Horizontal", 2))
sketch3.addConstraint(Sketcher.Constraint("Vertical", 3))
sketch3.addConstraint(Sketcher.Constraint("Horizontal", 4))
sketch3.addConstraint(Sketcher.Constraint("Horizontal", 6))
sketch3.addConstraint(Sketcher.Constraint("Horizontal", 8))
sketch3.addConstraint(Sketcher.Constraint("Horizontal", 10))
sketch3.addConstraint(Sketcher.Constraint("Horizontal", 12))
sketch3.addConstraint(Sketcher.Constraint("Vertical", 13))
sketch3.addConstraint(Sketcher.Constraint("Horizontal", 14))
sketch3.addConstraint(Sketcher.Constraint("Coincident", 12, 2, -1, 1))
sketch3.addConstraint(Sketcher.Constraint("PointOnObject", 0, 2, -1))
sketch3.addConstraint(Sketcher.Constraint("PointOnObject", 4, 2, -1))
sketch3.addConstraint(Sketcher.Constraint("PointOnObject", 8, 2, -1))
sketch3.addConstraint(Sketcher.Constraint("Parallel", 1, 5))
sketch3.addConstraint(Sketcher.Constraint("Perpendicular", 5, 7))
sketch3.addConstraint(Sketcher.Constraint("Perpendicular", 7, 9))
sketch3.addConstraint(Sketcher.Constraint("Perpendicular", 9, 11))
sketch3.addConstraint(Sketcher.Constraint("Parallel", 11, 15))
sketch3.addConstraint(Sketcher.Constraint("Horizontal", 2, 2, 5, 2))
sketch3.addConstraint(Sketcher.Constraint("Horizontal", 6, 2, 9, 2))
sketch3.addConstraint(Sketcher.Constraint("Horizontal", 10, 2, 13, 2))
sketch3.addConstraint(Sketcher.Constraint("Equal", 2, 6))
sketch3.addConstraint(Sketcher.Constraint("Equal", 4, 8))
sketch3.addConstraint(Sketcher.Constraint("Equal", 0, 12))
sketch3.addConstraint(Sketcher.Constraint("Equal", 10, 14))
sketch3.addConstraint(Sketcher.Constraint("DistanceX", 2, 1, 2, 2, 15.0))
sketch3.addConstraint(Sketcher.Constraint("DistanceY", 3, 2, 3, 1, 10.0))
sketch3.addConstraint(Sketcher.Constraint("DistanceX", -1, 1, 0, 2, 290.0))
sketch3.addConstraint(Sketcher.Constraint("DistanceX", -1, 1, 4, 2, 190.0))
sketch3.addConstraint(Sketcher.Constraint("DistanceX", -1, 1, 8, 2, 90.0))
pad2 = body.newObject("PartDesign::Pad", "Pad001")
pad2.Profile = sketch3
pad2.Length = 6.5
doc.recompute()

chamfer = body.newObject("PartDesign::Chamfer", "Chamfer")
chamfer.Base = (pad2, edges_at(pad2, [(0, 3.25, 10), (315, 3.25, 10)]))
chamfer.Size = 2

doc.recompute()
